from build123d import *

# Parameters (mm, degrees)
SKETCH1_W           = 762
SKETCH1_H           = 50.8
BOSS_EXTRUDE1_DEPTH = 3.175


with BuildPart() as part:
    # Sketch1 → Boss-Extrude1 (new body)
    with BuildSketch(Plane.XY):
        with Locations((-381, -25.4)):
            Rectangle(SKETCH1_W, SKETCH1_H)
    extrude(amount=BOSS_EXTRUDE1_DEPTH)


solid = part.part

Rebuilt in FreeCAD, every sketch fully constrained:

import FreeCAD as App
import Part
import Sketcher
Q = App.Units.Quantity

doc = App.newDocument("Part")
params = doc.addObject("Spreadsheet::Sheet", "Params")
for row, (alias, value) in enumerate([
    ("sketch1_width", "30 in"),
    ("sketch1_height", "2 in"),
    ("pad1_length", "0.125 in"),
], start=1):
    params.set(f"A{row}", alias)
    params.set(f"B{row}", "=" + value)
    params.setAlias(f"B{row}", alias)

body = doc.addObject("PartDesign::Body", "Body")

# Sketch on XY plane
sketch1 = doc.addObject("Sketcher::SketchObject", "Sketch")
body.addObject(sketch1)
sketch1.AttachmentSupport = (doc.XY_Plane, [""])
sketch1.MapMode = "FlatFace"
sketch1.addGeometry([
    Part.LineSegment(App.Vector(-762, 0, 0), App.Vector(-762, -50.8, 0)),
    Part.LineSegment(App.Vector(-762, -50.8, 0), App.Vector(0, -50.8, 0)),
    Part.LineSegment(App.Vector(0, -50.8, 0), App.Vector(0, 0, 0)),
    Part.LineSegment(App.Vector(0, 0, 0), App.Vector(-762, 0, 0)),
], False)
sketch1.addConstraint([
    Sketcher.Constraint("Coincident", 0, 2, 1, 1),
    Sketcher.Constraint("Coincident", 1, 2, 2, 1),
    Sketcher.Constraint("Coincident", 2, 2, 3, 1),
    Sketcher.Constraint("Coincident", 3, 2, 0, 1),
    Sketcher.Constraint("Vertical", 0),
    Sketcher.Constraint("Horizontal", 1),
    Sketcher.Constraint("Vertical", 2),
    Sketcher.Constraint("Horizontal", 3),
    Sketcher.Constraint("Coincident", 2, 2, -1, 1),
    Sketcher.Constraint("DistanceX", 1, 1, 1, 2, Q("30 in")),
    Sketcher.Constraint("DistanceY", 0, 2, 0, 1, Q("2 in")),
])
sketch1.setExpression("Constraints[9]", "Params.sketch1_width")
sketch1.setExpression("Constraints[10]", "Params.sketch1_height")
pad1 = doc.addObject("PartDesign::Pad", "Pad")
body.addObject(pad1)
pad1.Profile = sketch1
pad1.setExpression("Length", "Params.pad1_length")

doc.recompute()
